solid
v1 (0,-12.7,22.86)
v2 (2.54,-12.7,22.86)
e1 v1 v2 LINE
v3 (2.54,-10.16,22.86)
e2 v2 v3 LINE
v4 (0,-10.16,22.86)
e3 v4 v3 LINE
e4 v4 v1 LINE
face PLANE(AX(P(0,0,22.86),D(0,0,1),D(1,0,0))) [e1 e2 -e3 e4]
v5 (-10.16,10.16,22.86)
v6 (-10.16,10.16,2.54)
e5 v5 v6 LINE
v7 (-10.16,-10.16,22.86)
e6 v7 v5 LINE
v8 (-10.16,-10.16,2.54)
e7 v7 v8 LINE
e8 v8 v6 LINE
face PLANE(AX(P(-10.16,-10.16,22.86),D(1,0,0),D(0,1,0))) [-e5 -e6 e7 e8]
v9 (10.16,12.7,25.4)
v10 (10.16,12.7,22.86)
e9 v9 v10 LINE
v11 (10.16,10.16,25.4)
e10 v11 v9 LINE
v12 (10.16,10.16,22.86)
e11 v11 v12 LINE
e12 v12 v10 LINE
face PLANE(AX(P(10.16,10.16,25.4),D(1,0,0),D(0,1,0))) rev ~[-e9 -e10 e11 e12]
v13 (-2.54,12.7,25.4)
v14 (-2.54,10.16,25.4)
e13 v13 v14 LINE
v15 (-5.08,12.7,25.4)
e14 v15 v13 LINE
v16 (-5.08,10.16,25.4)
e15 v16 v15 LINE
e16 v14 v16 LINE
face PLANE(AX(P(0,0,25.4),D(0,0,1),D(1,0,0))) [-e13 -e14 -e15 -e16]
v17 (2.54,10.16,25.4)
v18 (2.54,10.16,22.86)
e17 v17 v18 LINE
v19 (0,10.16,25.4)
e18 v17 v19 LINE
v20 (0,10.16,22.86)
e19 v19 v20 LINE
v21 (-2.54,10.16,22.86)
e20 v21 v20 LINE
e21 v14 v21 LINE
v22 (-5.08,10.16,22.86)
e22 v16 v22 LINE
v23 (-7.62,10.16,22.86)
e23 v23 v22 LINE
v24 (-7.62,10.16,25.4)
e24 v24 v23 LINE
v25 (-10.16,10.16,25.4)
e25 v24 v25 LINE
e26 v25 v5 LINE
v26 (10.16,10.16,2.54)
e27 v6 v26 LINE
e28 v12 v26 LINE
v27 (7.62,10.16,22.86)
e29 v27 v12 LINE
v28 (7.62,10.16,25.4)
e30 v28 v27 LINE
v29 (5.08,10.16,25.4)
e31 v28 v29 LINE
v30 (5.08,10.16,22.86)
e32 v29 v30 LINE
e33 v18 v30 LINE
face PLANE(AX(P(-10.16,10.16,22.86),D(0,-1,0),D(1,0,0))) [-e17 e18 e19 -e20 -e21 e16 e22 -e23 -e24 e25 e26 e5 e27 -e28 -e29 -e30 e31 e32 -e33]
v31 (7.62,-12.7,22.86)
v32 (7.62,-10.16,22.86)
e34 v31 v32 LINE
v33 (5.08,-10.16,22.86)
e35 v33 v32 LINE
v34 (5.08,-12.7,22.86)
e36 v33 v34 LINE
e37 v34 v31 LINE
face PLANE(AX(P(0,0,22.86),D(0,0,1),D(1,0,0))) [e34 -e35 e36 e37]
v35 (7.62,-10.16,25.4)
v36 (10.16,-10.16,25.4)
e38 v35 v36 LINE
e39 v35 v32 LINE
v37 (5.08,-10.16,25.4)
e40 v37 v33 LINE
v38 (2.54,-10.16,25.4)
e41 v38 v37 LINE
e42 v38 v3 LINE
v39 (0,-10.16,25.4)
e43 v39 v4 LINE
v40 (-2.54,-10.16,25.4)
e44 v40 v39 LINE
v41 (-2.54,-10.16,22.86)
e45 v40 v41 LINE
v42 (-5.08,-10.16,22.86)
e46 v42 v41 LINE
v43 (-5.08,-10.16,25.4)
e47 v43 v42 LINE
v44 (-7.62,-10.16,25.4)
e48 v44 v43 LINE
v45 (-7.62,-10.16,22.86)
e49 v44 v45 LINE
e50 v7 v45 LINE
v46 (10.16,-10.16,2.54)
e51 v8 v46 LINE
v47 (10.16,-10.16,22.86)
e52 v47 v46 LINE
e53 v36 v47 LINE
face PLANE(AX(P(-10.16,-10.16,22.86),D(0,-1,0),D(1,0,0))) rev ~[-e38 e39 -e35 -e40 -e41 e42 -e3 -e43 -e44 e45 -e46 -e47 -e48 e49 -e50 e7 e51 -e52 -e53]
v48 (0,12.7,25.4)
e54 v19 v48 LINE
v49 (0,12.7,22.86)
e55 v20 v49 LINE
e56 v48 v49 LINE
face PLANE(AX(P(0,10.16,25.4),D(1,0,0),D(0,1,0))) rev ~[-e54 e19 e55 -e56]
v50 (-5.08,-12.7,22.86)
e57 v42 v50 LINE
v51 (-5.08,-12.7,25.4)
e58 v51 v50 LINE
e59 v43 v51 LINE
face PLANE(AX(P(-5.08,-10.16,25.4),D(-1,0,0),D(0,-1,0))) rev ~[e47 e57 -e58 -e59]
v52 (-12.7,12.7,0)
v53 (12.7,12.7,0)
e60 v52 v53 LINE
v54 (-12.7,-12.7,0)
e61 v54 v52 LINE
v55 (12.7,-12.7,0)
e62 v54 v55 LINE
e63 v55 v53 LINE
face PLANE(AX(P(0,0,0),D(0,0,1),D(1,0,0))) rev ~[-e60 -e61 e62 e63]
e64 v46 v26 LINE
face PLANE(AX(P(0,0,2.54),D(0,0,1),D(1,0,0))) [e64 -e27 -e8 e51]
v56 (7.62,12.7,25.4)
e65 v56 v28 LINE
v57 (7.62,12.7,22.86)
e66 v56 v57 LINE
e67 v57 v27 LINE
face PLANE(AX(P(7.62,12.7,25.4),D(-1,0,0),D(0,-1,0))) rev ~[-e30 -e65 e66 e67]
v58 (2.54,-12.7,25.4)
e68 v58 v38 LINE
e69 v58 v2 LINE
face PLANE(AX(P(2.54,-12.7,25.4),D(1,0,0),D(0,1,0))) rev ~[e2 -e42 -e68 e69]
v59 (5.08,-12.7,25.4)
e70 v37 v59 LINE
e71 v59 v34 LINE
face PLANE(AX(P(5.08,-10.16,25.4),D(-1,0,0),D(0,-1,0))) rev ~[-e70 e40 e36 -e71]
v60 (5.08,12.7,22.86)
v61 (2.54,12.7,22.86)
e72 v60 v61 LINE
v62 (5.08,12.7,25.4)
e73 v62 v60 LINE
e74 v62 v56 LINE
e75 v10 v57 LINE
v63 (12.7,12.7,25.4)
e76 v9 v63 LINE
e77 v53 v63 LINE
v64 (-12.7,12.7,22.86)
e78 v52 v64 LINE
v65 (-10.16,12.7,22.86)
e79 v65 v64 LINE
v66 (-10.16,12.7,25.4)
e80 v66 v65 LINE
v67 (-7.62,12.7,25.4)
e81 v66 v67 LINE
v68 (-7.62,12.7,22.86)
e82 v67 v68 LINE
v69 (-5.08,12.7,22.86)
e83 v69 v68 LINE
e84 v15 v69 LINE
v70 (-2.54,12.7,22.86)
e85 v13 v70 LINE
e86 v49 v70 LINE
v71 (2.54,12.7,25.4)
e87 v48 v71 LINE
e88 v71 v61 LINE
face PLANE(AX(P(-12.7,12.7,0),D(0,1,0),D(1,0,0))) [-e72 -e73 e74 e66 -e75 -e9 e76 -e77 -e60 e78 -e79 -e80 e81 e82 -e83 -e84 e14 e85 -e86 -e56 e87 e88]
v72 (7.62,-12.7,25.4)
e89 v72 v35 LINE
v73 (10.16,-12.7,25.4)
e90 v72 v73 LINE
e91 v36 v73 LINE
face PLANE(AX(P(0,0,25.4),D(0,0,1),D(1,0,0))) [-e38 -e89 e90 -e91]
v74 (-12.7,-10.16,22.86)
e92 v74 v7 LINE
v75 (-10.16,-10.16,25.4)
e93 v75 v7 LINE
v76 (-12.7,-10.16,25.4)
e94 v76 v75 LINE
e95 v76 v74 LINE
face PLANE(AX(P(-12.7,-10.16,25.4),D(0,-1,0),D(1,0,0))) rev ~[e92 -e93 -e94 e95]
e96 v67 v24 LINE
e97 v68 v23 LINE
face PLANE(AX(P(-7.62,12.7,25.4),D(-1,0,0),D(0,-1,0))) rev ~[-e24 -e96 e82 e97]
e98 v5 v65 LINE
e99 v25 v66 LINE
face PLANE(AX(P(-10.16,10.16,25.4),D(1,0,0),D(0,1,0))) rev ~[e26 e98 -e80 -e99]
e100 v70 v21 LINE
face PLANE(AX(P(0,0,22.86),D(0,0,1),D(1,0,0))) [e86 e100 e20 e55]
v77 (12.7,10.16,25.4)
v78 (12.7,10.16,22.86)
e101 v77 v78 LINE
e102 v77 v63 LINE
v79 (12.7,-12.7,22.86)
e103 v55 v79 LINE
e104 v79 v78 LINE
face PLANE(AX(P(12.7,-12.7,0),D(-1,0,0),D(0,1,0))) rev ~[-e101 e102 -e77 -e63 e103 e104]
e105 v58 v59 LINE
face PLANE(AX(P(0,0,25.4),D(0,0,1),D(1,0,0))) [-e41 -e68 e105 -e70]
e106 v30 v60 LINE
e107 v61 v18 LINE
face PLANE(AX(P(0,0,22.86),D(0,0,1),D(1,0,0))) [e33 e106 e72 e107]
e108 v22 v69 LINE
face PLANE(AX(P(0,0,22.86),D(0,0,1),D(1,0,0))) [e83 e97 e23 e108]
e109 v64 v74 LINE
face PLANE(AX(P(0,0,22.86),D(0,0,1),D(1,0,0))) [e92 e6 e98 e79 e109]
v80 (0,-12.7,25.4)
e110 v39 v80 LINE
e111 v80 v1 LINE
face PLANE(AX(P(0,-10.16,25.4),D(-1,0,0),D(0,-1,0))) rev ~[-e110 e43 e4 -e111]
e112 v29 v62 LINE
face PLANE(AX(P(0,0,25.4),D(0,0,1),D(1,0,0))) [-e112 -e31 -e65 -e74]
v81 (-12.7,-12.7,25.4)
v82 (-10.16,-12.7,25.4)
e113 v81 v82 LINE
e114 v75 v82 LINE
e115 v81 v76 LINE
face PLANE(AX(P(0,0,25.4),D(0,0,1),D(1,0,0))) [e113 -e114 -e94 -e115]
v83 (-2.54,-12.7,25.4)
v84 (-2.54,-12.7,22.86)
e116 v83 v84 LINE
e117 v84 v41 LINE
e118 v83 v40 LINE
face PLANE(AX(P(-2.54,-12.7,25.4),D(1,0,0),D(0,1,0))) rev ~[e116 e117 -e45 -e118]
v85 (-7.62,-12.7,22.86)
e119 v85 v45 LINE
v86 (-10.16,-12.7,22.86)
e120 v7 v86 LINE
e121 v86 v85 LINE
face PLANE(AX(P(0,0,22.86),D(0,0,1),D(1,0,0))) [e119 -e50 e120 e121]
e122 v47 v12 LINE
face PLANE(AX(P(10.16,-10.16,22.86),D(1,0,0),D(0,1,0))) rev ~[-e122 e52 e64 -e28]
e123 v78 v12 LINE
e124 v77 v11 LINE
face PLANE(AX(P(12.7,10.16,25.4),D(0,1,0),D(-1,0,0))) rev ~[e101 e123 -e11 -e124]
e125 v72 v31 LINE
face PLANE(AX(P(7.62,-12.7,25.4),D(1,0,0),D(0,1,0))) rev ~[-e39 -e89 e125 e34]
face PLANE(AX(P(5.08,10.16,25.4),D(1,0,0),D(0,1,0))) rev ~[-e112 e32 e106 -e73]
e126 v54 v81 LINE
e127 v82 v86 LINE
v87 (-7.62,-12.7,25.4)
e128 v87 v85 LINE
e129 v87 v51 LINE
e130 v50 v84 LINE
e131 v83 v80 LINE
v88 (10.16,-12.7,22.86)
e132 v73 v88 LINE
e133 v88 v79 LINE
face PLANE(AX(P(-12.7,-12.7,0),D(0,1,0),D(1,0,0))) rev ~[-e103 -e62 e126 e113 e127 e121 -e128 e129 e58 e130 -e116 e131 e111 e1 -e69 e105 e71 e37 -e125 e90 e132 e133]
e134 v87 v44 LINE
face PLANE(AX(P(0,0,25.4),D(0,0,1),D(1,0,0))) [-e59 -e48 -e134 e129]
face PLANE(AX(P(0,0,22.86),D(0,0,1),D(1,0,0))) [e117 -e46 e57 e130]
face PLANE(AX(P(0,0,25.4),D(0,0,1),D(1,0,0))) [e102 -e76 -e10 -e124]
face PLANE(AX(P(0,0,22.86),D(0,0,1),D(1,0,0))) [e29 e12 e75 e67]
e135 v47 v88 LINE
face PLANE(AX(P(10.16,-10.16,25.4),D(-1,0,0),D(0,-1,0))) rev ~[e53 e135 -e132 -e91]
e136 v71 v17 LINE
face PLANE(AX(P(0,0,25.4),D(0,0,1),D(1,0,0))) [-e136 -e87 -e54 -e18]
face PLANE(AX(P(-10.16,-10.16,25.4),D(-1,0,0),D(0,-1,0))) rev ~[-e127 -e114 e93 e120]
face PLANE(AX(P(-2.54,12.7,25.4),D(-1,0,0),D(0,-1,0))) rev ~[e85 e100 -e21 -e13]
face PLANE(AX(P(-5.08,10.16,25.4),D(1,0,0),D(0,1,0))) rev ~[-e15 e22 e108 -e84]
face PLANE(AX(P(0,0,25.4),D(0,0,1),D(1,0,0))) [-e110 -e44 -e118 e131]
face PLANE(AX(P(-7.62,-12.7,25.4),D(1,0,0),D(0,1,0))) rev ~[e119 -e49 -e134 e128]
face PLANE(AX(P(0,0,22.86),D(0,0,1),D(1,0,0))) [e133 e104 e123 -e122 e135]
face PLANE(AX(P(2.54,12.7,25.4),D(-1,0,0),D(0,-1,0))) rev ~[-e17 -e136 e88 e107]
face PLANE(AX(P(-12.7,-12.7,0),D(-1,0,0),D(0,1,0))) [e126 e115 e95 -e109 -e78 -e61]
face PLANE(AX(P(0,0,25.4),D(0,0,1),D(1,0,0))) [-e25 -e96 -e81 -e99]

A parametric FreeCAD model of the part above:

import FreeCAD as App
import Part
import Sketcher
Q = App.Units.Quantity


def add_polygon(sketch, points):
    """Adds a closed chain of lines whose ends are joined by coincident constraints."""
    first, n = sketch.GeometryCount, len(points)
    for a, b in zip(points, points[1:] + points[:1]):
        sketch.addGeometry(Part.LineSegment(App.Vector(*a, 0), App.Vector(*b, 0)), False)
    for i in range(n):
        sketch.addConstraint(Sketcher.Constraint("Coincident", first + i, 2, first + (i + 1) % n, 1))

doc = App.newDocument("Part")
body = doc.addObject("PartDesign::Body", "Body")

# Sketch on XY plane
sketch1 = body.newObject("Sketcher::SketchObject", "Sketch")
sketch1.AttachmentSupport = (doc.getObject("XY_Plane"), [""])
sketch1.MapMode = "FlatFace"
add_polygon(sketch1, [(-12.7, 12.7), (-12.7, -12.7), (12.7, -12.7), (12.7, 12.7)])  # lines 0-3
sketch1.addConstraint([
    Sketcher.Constraint("Vertical", 0),
    Sketcher.Constraint("Horizontal", 1),
    Sketcher.Constraint("Vertical", 2),
    Sketcher.Constraint("Horizontal", 3),
    Sketcher.Constraint("Symmetric", 0, 2, 2, 2, -1, 1),
    Sketcher.Constraint("Equal", 3, 0),
    Sketcher.Constraint("DistanceX", 1, 1, 1, 2, Q("1 in")),
])
pad1 = body.newObject("PartDesign::Pad", "Pad")
pad1.Profile = sketch1
pad1.Length = Q("1 in")

# Sketch on XY plane
sketch2 = body.newObject("Sketcher::SketchObject", "Sketch001")
sketch2.AttachmentSupport = (doc.getObject("XY_Plane"), [""])
sketch2.MapMode = "FlatFace"
sketch2.AttachmentOffset = App.Placement(App.Vector(0, 0, 1 * 25.4), App.Rotation())
add_polygon(sketch2, [(12.7, 10.16), (10.16, 10.16), (10.16, 12.7), (7.62, 12.7), (7.62, 10.16), (5.08, 10.16), (5.08, 12.7), (2.54, 12.7), (2.54, 10.16), (0, 10.16), (0, 12.7), (-2.54, 12.7), (-2.54, 10.16), (-5.08, 10.16), (-5.08, 12.7), (-7.62, 12.7), (-7.62, 10.16), (-10.16, 10.16), (-10.16, 12.7), (-12.7, 12.7), (-12.7, -10.16), (-10.16, -10.16), (-10.16, -12.7), (-7.62, -12.7), (-7.62, -10.16), (-5.08, -10.16), (-5.08, -12.7), (-2.54, -12.7), (-2.54, -10.16), (0, -10.16), (0, -12.7), (2.54, -12.7), (2.54, -10.16), (5.08, -10.16), (5.08, -12.7), (7.62, -12.7), (7.62, -10.16), (10.16, -10.16), (10.16, -12.7), (12.7, -12.7)])  # lines 0-39
sketch2.addConstraint([
    Sketcher.Constraint("Horizontal", 0),
    Sketcher.Constraint("Vertical", 1),
    Sketcher.Constraint("Horizontal", 2),
    Sketcher.Constraint("Vertical", 3),
    Sketcher.Constraint("Horizontal", 4),
    Sketcher.Constraint("Vertical", 5),
    Sketcher.Constraint("Horizontal", 6),
    Sketcher.Constraint("Vertical", 7),
    Sketcher.Constraint("Horizontal", 8),
    Sketcher.Constraint("Vertical", 9),
    Sketcher.Constraint("Horizontal", 10),
    Sketcher.Constraint("Vertical", 11),
    Sketcher.Constraint("Horizontal", 12),
    Sketcher.Constraint("Vertical", 13),
    Sketcher.Constraint("Horizontal", 14),
    Sketcher.Constraint("Vertical", 15),
    Sketcher.Constraint("Horizontal", 16),
    Sketcher.Constraint("Vertical", 17),
    Sketcher.Constraint("Horizontal", 18),
    Sketcher.Constraint("Vertical", 19),
    Sketcher.Constraint("Horizontal", 20),
    Sketcher.Constraint("Vertical", 21),
    Sketcher.Constraint("Horizontal", 22),
    Sketcher.Constraint("Vertical", 23),
    Sketcher.Constraint("Horizontal", 24),
    Sketcher.Constraint("Vertical", 25),
    Sketcher.Constraint("Horizontal", 26),
    Sketcher.Constraint("Vertical", 27),
    Sketcher.Constraint("Horizontal", 28),
    Sketcher.Constraint("Vertical", 29),
    Sketcher.Constraint("Horizontal", 30),
    Sketcher.Constraint("Vertical", 31),
    Sketcher.Constraint("Horizontal", 32),
    Sketcher.Constraint("Vertical", 33),
    Sketcher.Constraint("Horizontal", 34),
    Sketcher.Constraint("Vertical", 35),
    Sketcher.Constraint("Horizontal", 36),
    Sketcher.Constraint("Vertical", 37),
    Sketcher.Constraint("Horizontal", 38),
    Sketcher.Constraint("Vertical", 39),
    Sketcher.Constraint("Symmetric", 0, 2, 20, 2, -1, 1),
    Sketcher.Constraint("Symmetric", 2, 2, 22, 2, -1, 1),
    Sketcher.Constraint("Symmetric", 4, 2, 24, 2, -1, 1),
    Sketcher.Constraint("Symmetric", 6, 2, 26, 2, -1, 1),
    Sketcher.Constraint("Symmetric", 8, 2, 28, 2, -1, 1),
    Sketcher.Constraint("Symmetric", 10, 2, 30, 2, -1, 1),
    Sketcher.Constraint("Symmetric", 12, 2, 32, 2, -1, 1),
    Sketcher.Constraint("Symmetric", 14, 2, 34, 2, -1, 1),
    Sketcher.Constraint("Symmetric", 16, 2, 36, 2, -1, 1),
    Sketcher.Constraint("Symmetric", 18, 2, 38, 2, -1, 1),
    Sketcher.Constraint("Symmetric", 6, 2, 10, 2, -2),
    Sketcher.Constraint("Symmetric", 4, 2, 12, 2, -2),
    Sketcher.Constraint("Symmetric", 2, 2, 14, 2, -2),
    Sketcher.Constraint("Symmetric", 0, 2, 16, 2, -2),
    Sketcher.Constraint("PointOnObject", 8, 2, -2),
    Sketcher.Constraint("Horizontal", 0, 2, 3, 2),
    Sketcher.Constraint("Horizontal", 2, 2, 5, 2),
    Sketcher.Constraint("Horizontal", 4, 2, 7, 2),
    Sketcher.Constraint("Horizontal", 14, 2, 17, 2),
    Sketcher.Constraint("Equal", 0, 2),
    Sketcher.Constraint("Equal", 2, 4),
    Sketcher.Constraint("Equal", 4, 6),
    Sketcher.Constraint("Equal", 6, 8),
    Sketcher.Constraint("Equal", 38, 1),
    Sketcher.Constraint("DistanceX", 0, 2, 0, 1, Q("0.1 in")),
    Sketcher.Constraint("DistanceY", 19, 2, 19, 1, Q("0.9 in")),
])
pocket1 = body.newObject("PartDesign::Pocket", "Pocket")
pocket1.Profile = sketch2
pocket1.Length = Q("0.1 in")

# Sketch on XY plane
sketch3 = body.newObject("Sketcher::SketchObject", "Sketch002")
sketch3.AttachmentSupport = (doc.getObject("XY_Plane"), [""])
sketch3.MapMode = "FlatFace"
sketch3.AttachmentOffset = App.Placement(App.Vector(0, 0, 0.9 * 25.4), App.Rotation())
add_polygon(sketch3, [(-10.16, 10.16), (-10.16, -10.16), (10.16, -10.16), (10.16, 10.16)])  # lines 0-3
sketch3.addConstraint([
    Sketcher.Constraint("Vertical", 0),
    Sketcher.Constraint("Horizontal", 1),
    Sketcher.Constraint("Vertical", 2),
    Sketcher.Constraint("Horizontal", 3),
    Sketcher.Constraint("Symmetric", 0, 2, 2, 2, -1, 1),
    Sketcher.Constraint("Equal", 3, 0),
    Sketcher.Constraint("DistanceX", 1, 1, 1, 2, Q("0.8 in")),
])
pocket2 = body.newObject("PartDesign::Pocket", "Pocket001")
pocket2.Profile = sketch3
pocket2.Length = Q("0.8 in")

doc.recompute()
